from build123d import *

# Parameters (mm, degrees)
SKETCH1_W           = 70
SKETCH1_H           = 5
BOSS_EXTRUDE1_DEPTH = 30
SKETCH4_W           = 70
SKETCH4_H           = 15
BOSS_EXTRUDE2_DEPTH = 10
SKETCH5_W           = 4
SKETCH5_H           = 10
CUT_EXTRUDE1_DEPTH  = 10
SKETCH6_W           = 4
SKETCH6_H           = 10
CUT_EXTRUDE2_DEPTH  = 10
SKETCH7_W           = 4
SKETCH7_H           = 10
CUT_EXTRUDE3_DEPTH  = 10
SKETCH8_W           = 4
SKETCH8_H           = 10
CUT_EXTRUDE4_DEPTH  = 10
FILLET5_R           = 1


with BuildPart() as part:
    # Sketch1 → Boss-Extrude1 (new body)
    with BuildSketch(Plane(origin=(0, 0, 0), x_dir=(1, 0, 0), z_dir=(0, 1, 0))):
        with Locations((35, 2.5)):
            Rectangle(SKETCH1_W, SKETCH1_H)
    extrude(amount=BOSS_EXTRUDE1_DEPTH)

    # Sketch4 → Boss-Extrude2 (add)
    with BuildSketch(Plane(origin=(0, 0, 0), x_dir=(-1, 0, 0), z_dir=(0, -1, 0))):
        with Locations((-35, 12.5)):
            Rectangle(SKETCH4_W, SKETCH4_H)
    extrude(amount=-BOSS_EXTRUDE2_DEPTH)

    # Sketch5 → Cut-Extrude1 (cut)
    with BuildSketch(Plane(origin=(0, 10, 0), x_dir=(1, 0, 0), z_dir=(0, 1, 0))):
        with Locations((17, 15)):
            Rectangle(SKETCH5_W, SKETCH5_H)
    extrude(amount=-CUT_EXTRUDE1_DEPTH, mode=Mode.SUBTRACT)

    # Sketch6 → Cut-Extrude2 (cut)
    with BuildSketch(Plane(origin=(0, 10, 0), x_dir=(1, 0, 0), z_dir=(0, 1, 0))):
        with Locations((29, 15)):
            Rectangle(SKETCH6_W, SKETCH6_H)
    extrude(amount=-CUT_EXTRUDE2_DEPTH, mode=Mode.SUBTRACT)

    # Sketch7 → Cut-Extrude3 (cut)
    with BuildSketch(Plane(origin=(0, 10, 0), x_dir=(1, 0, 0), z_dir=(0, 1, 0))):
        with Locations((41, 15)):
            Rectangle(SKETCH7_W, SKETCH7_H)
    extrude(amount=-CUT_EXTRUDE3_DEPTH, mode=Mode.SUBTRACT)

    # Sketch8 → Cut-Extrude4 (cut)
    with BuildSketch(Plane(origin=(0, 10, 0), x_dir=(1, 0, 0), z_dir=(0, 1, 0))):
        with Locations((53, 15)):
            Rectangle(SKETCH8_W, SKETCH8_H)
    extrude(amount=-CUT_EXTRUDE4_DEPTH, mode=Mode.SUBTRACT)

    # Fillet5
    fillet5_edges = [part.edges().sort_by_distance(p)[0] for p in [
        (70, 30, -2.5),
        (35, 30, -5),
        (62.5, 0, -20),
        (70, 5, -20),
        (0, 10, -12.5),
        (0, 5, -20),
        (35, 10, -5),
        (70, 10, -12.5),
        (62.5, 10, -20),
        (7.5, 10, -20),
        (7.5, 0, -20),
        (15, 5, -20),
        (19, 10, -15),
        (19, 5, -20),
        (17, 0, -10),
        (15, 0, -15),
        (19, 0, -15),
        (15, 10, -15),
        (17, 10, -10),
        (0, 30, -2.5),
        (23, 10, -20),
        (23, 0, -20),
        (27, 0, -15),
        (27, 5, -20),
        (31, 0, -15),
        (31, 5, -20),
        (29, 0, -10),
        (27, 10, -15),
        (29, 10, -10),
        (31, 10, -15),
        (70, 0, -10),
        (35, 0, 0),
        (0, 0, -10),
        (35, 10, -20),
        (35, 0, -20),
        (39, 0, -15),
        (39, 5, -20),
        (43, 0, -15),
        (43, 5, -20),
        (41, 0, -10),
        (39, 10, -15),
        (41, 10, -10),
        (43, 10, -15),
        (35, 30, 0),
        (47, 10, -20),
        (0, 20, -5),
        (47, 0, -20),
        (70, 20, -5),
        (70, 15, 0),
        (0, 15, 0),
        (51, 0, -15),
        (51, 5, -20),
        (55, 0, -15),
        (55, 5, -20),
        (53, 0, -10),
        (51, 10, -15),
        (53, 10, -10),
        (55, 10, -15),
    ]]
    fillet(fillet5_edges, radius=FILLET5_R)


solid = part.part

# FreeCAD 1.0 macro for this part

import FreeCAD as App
import Part
import Sketcher

V = App.Vector
Q = App.Units.Quantity


def edges_at(feature, points):
    """Names of the edges that pass closest to the given points."""
    edges = feature.Shape.Edges
    near = lambda p: min(range(len(edges)), key=lambda i: edges[i].distToShape(Part.Vertex(*p))[0])
    return sorted({f"Edge{near(p) + 1}" for p in points})


def add_polygon(sketch, points):
    """Adds a closed chain of lines whose ends are joined by coincident constraints."""
    first, n = sketch.GeometryCount, len(points)
    for a, b in zip(points, points[1:] + points[:1]):
        sketch.addGeometry(Part.LineSegment(App.Vector(*a, 0), App.Vector(*b, 0)), False)
    for i in range(n):
        sketch.addConstraint(Sketcher.Constraint("Coincident", first + i, 2, first + (i + 1) % n, 1))

doc = App.newDocument("Part")
body = doc.addObject("PartDesign::Body", "Body")

# Sketch on XZ plane
sketch1 = body.newObject("Sketcher::SketchObject", "Sketch")
sketch1.AttachmentSupport = (doc.getObject("XZ_Plane"), [""])
sketch1.MapMode = "FlatFace"
add_polygon(sketch1, [(0, -5), (0, 0), (70, 0), (70, -5)])  # lines 0-3
sketch1.addConstraint([
    Sketcher.Constraint("Vertical", 0),
    Sketcher.Constraint("Horizontal", 1),
    Sketcher.Constraint("Vertical", 2),
    Sketcher.Constraint("Horizontal", 3),
    Sketcher.Constraint("Coincident", 0, 2, -1, 1),
    Sketcher.Constraint("DistanceX", 1, 1, 1, 2, Q("70 mm")),
    Sketcher.Constraint("DistanceY", 0, 1, 0, 2, Q("5 mm")),
])
pad1 = body.newObject("PartDesign::Pad", "Pad")
pad1.Profile = sketch1
pad1.Length = 30
pad1.Reversed = True

# Sketch on XZ plane
sketch2 = body.newObject("Sketcher::SketchObject", "Sketch001")
sketch2.AttachmentSupport = (doc.getObject("XZ_Plane"), [""])
sketch2.MapMode = "FlatFace"
add_polygon(sketch2, [(70, -20), (70, -5), (0, -5), (0, -20)])  # lines 0-3
sketch2.addConstraint([
    Sketcher.Constraint("Vertical", 0),
    Sketcher.Constraint("Horizontal", 1),
    Sketcher.Constraint("Vertical", 2),
    Sketcher.Constraint("Horizontal", 3),
    Sketcher.Constraint("PointOnObject", 1, 2, -2),
    Sketcher.Constraint("DistanceX", 1, 2, 1, 1, Q("70 mm")),
    Sketcher.Constraint("DistanceY", 0, 1, 0, 2, Q("15 mm")),
    Sketcher.Constraint("DistanceY", 0, 2, -1, 1, Q("5 mm")),
])
pad2 = body.newObject("PartDesign::Pad", "Pad001")
pad2.Profile = sketch2
pad2.Length = 10
pad2.Reversed = True

# Sketch on XZ plane
sketch3 = body.newObject("Sketcher::SketchObject", "Sketch002")
sketch3.AttachmentSupport = (doc.getObject("XZ_Plane"), [""])
sketch3.MapMode = "FlatFace"
sketch3.AttachmentOffset = App.Placement(V(0, 0, -10), App.Rotation())
add_polygon(sketch3, [(15, -20), (15, -10), (19, -10), (19, -20)])  # lines 0-3
sketch3.addConstraint([
    Sketcher.Constraint("Vertical", 0),
    Sketcher.Constraint("Horizontal", 1),
    Sketcher.Constraint("Vertical", 2),
    Sketcher.Constraint("Horizontal", 3),
    Sketcher.Constraint("DistanceX", 1, 1, 1, 2, Q("4 mm")),
    Sketcher.Constraint("DistanceY", 0, 1, 0, 2, Q("10 mm")),
    Sketcher.Constraint("DistanceX", -1, 1, 0, 2, Q("15 mm")),
    Sketcher.Constraint("DistanceY", 0, 2, -1, 1, Q("10 mm")),
])
pocket1 = body.newObject("PartDesign::Pocket", "Pocket")
pocket1.Profile = sketch3
pocket1.Length = 10
pocket1.Reversed = True

# Sketch on XZ plane
sketch4 = body.newObject("Sketcher::SketchObject", "Sketch003")
sketch4.AttachmentSupport = (doc.getObject("XZ_Plane"), [""])
sketch4.MapMode = "FlatFace"
sketch4.AttachmentOffset = App.Placement(V(0, 0, -10), App.Rotation())
add_polygon(sketch4, [(27, -20), (27, -10), (31, -10), (31, -20)])  # lines 0-3
sketch4.addConstraint([
    Sketcher.Constraint("Vertical", 0),
    Sketcher.Constraint("Horizontal", 1),
    Sketcher.Constraint("Vertical", 2),
    Sketcher.Constraint("Horizontal", 3),
    Sketcher.Constraint("DistanceX", 1, 1, 1, 2, Q("4 mm")),
    Sketcher.Constraint("DistanceY", 0, 1, 0, 2, Q("10 mm")),
    Sketcher.Constraint("DistanceX", -1, 1, 0, 2, Q("27 mm")),
    Sketcher.Constraint("DistanceY", 0, 2, -1, 1, Q("10 mm")),
])
pocket2 = body.newObject("PartDesign::Pocket", "Pocket001")
pocket2.Profile = sketch4
pocket2.Length = 10
pocket2.Reversed = True

# Sketch on XZ plane
sketch5 = body.newObject("Sketcher::SketchObject", "Sketch004")
sketch5.AttachmentSupport = (doc.getObject("XZ_Plane"), [""])
sketch5.MapMode = "FlatFace"
sketch5.AttachmentOffset = App.Placement(V(0, 0, -10), App.Rotation())
add_polygon(sketch5, [(39, -20), (39, -10), (43, -10), (43, -20)])  # lines 0-3
sketch5.addConstraint([
    Sketcher.Constraint("Vertical", 0),
    Sketcher.Constraint("Horizontal", 1),
    Sketcher.Constraint("Vertical", 2),
    Sketcher.Constraint("Horizontal", 3),
    Sketcher.Constraint("DistanceX", 1, 1, 1, 2, Q("4 mm")),
    Sketcher.Constraint("DistanceY", 0, 1, 0, 2, Q("10 mm")),
    Sketcher.Constraint("DistanceX", -1, 1, 0, 2, Q("39 mm")),
    Sketcher.Constraint("DistanceY", 0, 2, -1, 1, Q("10 mm")),
])
pocket3 = body.newObject("PartDesign::Pocket", "Pocket002")
pocket3.Profile = sketch5
pocket3.Length = 10
pocket3.Reversed = True

# Sketch on XZ plane
sketch6 = body.newObject("Sketcher::SketchObject", "Sketch005")
sketch6.AttachmentSupport = (doc.getObject("XZ_Plane"), [""])
sketch6.MapMode = "FlatFace"
sketch6.AttachmentOffset = App.Placement(V(0, 0, -10), App.Rotation())
add_polygon(sketch6, [(51, -20), (51, -10), (55, -10), (55, -20)])  # lines 0-3
sketch6.addConstraint([
    Sketcher.Constraint("Vertical", 0),
    Sketcher.Constraint("Horizontal", 1),
    Sketcher.Constraint("Vertical", 2),
    Sketcher.Constraint("Horizontal", 3),
    Sketcher.Constraint("DistanceX", 1, 1, 1, 2, Q("4 mm")),
    Sketcher.Constraint("DistanceY", 0, 1, 0, 2, Q("10 mm")),
    Sketcher.Constraint("DistanceX", -1, 1, 0, 2, Q("51 mm")),
    Sketcher.Constraint("DistanceY", 0, 2, -1, 1, Q("10 mm")),
])
pocket4 = body.newObject("PartDesign::Pocket", "Pocket003")
pocket4.Profile = sketch6
pocket4.Length = 10
pocket4.Reversed = True
doc.recompute()

fillet = body.newObject("PartDesign::Fillet", "Fillet")
fillet.Base = (pocket4, edges_at(pocket4, [
    (70, 30, -2.5),
    (35, 30, -5),
    (62.5, 0, -20),
    (70, 5, -20),
    (0, 10, -12.5),
    (0, 5, -20),
    (35, 10, -5),
    (70, 10, -12.5),
    (62.5, 10, -20),
    (7.5, 10, -20),
    (7.5, 0, -20),
    (15, 5, -20),
    (19, 10, -15),
    (19, 5, -20),
    (17, 0, -10),
    (15, 0, -15),
    (19, 0, -15),
    (15, 10, -15),
    (17, 10, -10),
    (0, 30, -2.5),
    (23, 10, -20),
    (23, 0, -20),
    (27, 0, -15),
    (27, 5, -20),
    (31, 0, -15),
    (31, 5, -20),
    (29, 0, -10),
    (27, 10, -15),
    (29, 10, -10),
    (31, 10, -15),
    (70, 0, -10),
    (35, 0, 0),
    (0, 0, -10),
    (35, 10, -20),
    (35, 0, -20),
    (39, 0, -15),
    (39, 5, -20),
    (43, 0, -15),
    (43, 5, -20),
    (41, 0, -10),
    (39, 10, -15),
    (41, 10, -10),
    (43, 10, -15),
    (35, 30, 0),
    (47, 10, -20),
    (0, 20, -5),
    (47, 0, -20),
    (70, 20, -5),
    (70, 15, 0),
    (0, 15, 0),
    (51, 0, -15),
    (51, 5, -20),
    (55, 0, -15),
    (55, 5, -20),
    (53, 0, -10),
    (51, 10, -15),
    (53, 10, -10),
    (55, 10, -15),
]))
fillet.Radius = 1

doc.recompute()
